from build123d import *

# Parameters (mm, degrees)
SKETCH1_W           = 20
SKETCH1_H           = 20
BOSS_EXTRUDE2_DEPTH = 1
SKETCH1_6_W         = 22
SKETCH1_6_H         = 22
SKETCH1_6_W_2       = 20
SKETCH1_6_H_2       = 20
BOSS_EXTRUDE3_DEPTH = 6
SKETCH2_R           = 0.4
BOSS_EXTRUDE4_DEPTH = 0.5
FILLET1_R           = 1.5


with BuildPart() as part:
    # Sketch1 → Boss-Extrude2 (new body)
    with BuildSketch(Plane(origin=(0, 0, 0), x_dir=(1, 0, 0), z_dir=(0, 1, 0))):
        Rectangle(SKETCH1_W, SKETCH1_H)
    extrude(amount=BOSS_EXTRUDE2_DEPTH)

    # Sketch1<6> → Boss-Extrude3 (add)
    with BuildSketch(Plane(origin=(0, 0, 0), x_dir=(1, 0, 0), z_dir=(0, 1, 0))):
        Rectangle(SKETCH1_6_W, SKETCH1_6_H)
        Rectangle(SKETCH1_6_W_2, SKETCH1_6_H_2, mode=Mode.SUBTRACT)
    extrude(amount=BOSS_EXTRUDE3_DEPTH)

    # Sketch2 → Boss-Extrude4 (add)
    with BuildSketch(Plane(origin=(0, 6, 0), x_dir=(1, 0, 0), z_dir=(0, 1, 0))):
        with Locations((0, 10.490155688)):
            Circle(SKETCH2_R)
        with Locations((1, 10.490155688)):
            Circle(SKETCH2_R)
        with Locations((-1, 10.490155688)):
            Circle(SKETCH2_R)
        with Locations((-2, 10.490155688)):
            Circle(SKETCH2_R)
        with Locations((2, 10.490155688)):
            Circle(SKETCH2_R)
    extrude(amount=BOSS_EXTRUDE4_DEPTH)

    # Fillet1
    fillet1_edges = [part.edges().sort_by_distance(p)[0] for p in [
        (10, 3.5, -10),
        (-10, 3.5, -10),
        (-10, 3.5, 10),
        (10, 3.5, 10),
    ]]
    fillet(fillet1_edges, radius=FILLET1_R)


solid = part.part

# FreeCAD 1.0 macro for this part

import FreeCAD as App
import Part
import Sketcher

V = App.Vector
Q = App.Units.Quantity


def edges_at(feature, points):
    """Names of the edges that pass closest to the given points."""
    edges = feature.Shape.Edges
    near = lambda p: min(range(len(edges)), key=lambda i: edges[i].distToShape(Part.Vertex(*p))[0])
    return sorted({f"Edge{near(p) + 1}" for p in points})

doc = App.newDocument("Part")
params = doc.addObject("Spreadsheet::Sheet", "Params")
for row, (alias, value) in enumerate([
    ("sketch1_width", "20 mm"),
    ("pad1_length", "1 mm"),
    ("sketch2_width", "22 mm"),
    ("sketch2_width2", "20 mm"),
    ("pad2_length", "6 mm"),
    ("sketch3_diameter", "0.8 mm"),
    ("pad3_length", "0.5 mm"),
    ("fillet_radius", "1.5 mm"),
], start=1):
    params.set(f"A{row}", alias)
    params.set(f"B{row}", "=" + value)
    params.setAlias(f"B{row}", alias)

body = doc.addObject("PartDesign::Body", "Body")

# Sketch on XZ plane
sketch1 = body.newObject("Sketcher::SketchObject", "Sketch")
sketch1.AttachmentSupport = (doc.getObject("XZ_Plane"), [""])
sketch1.MapMode = "FlatFace"
sketch1.addGeometry(Part.LineSegment(V(-10, -10, 0), V(-10, 10, 0)), False)
sketch1.addGeometry(Part.LineSegment(V(-10, 10, 0), V(10, 10, 0)), False)
sketch1.addGeometry(Part.LineSegment(V(10, 10, 0), V(10, -10, 0)), False)
sketch1.addGeometry(Part.LineSegment(V(10, -10, 0), V(-10, -10, 0)), False)
sketch1.addConstraint(Sketcher.Constraint("Coincident", 0, 2, 1, 1))
sketch1.addConstraint(Sketcher.Constraint("Coincident", 1, 2, 2, 1))
sketch1.addConstraint(Sketcher.Constraint("Coincident", 2, 2, 3, 1))
sketch1.addConstraint(Sketcher.Constraint("Coincident", 3, 2, 0, 1))
sketch1.addConstraint(Sketcher.Constraint("Vertical", 0))
sketch1.addConstraint(Sketcher.Constraint("Horizontal", 1))
sketch1.addConstraint(Sketcher.Constraint("Vertical", 2))
sketch1.addConstraint(Sketcher.Constraint("Horizontal", 3))
sketch1.addConstraint(Sketcher.Constraint("Symmetric", 0, 2, 2, 2, -1, 1))
sketch1.addConstraint(Sketcher.Constraint("Equal", 3, 0))
sketch1.addConstraint(Sketcher.Constraint("DistanceX", 1, 1, 1, 2, Q("20 mm")))
sketch1.setExpression("Constraints[10]", "Params.sketch1_width")
pad1 = body.newObject("PartDesign::Pad", "Pad")
pad1.Profile = sketch1
pad1.setExpression("Length", "Params.pad1_length")
pad1.Reversed = True

# Sketch on XZ plane
sketch2 = body.newObject("Sketcher::SketchObject", "Sketch001")
sketch2.AttachmentSupport = (doc.getObject("XZ_Plane"), [""])
sketch2.MapMode = "FlatFace"
sketch2.addGeometry(Part.LineSegment(V(-11, -11, 0), V(-11, 11, 0)), False)
sketch2.addGeometry(Part.LineSegment(V(-11, 11, 0), V(11, 11, 0)), False)
sketch2.addGeometry(Part.LineSegment(V(11, 11, 0), V(11, -11, 0)), False)
sketch2.addGeometry(Part.LineSegment(V(11, -11, 0), V(-11, -11, 0)), False)
sketch2.addGeometry(Part.LineSegment(V(10, 10, 0), V(-10, 10, 0)), False)
sketch2.addGeometry(Part.LineSegment(V(-10, 10, 0), V(-10, -10, 0)), False)
sketch2.addGeometry(Part.LineSegment(V(-10, -10, 0), V(10, -10, 0)), False)
sketch2.addGeometry(Part.LineSegment(V(10, -10, 0), V(10, 10, 0)), False)
sketch2.addConstraint(Sketcher.Constraint("Coincident", 0, 2, 1, 1))
sketch2.addConstraint(Sketcher.Constraint("Coincident", 1, 2, 2, 1))
sketch2.addConstraint(Sketcher.Constraint("Coincident", 2, 2, 3, 1))
sketch2.addConstraint(Sketcher.Constraint("Coincident", 3, 2, 0, 1))
sketch2.addConstraint(Sketcher.Constraint("Coincident", 4, 2, 5, 1))
sketch2.addConstraint(Sketcher.Constraint("Coincident", 5, 2, 6, 1))
sketch2.addConstraint(Sketcher.Constraint("Coincident", 6, 2, 7, 1))
sketch2.addConstraint(Sketcher.Constraint("Coincident", 7, 2, 4, 1))
sketch2.addConstraint(Sketcher.Constraint("Vertical", 0))
sketch2.addConstraint(Sketcher.Constraint("Horizontal", 1))
sketch2.addConstraint(Sketcher.Constraint("Vertical", 2))
sketch2.addConstraint(Sketcher.Constraint("Horizontal", 3))
sketch2.addConstraint(Sketcher.Constraint("Horizontal", 4))
sketch2.addConstraint(Sketcher.Constraint("Vertical", 5))
sketch2.addConstraint(Sketcher.Constraint("Horizontal", 6))
sketch2.addConstraint(Sketcher.Constraint("Vertical", 7))
sketch2.addConstraint(Sketcher.Constraint("Symmetric", 0, 2, 2, 2, -1, 1))
sketch2.addConstraint(Sketcher.Constraint("Symmetric", 4, 2, 6, 2, -1, 1))
sketch2.addConstraint(Sketcher.Constraint("Equal", 3, 0))
sketch2.addConstraint(Sketcher.Constraint("Equal", 6, 5))
sketch2.addConstraint(Sketcher.Constraint("DistanceX", 1, 1, 1, 2, Q("22 mm")))
sketch2.addConstraint(Sketcher.Constraint("DistanceX", 4, 2, 4, 1, Q("20 mm")))
sketch2.setExpression("Constraints[20]", "Params.sketch2_width")
sketch2.setExpression("Constraints[21]", "Params.sketch2_width2")
pad2 = body.newObject("PartDesign::Pad", "Pad001")
pad2.Profile = sketch2
pad2.setExpression("Length", "Params.pad2_length")
pad2.Reversed = True

# Sketch on XZ plane
sketch3 = body.newObject("Sketcher::SketchObject", "Sketch002")
sketch3.AttachmentSupport = (doc.getObject("XZ_Plane"), [""])
sketch3.MapMode = "FlatFace"
sketch3.AttachmentOffset = App.Placement(V(0, 0, -6), App.Rotation())
sketch3.addGeometry(Part.Circle(V(0, -10.490156, 0), V(0, 0, 1), 0.4), False)
sketch3.addGeometry(Part.Circle(V(1, -10.490156, 0), V(0, 0, 1), 0.4), False)
sketch3.addGeometry(Part.Circle(V(-1, -10.490156, 0), V(0, 0, 1), 0.4), False)
sketch3.addGeometry(Part.Circle(V(-2, -10.490156, 0), V(0, 0, 1), 0.4), False)
sketch3.addGeometry(Part.Circle(V(2, -10.490156, 0), V(0, 0, 1), 0.4), False)
sketch3.addConstraint(Sketcher.Constraint("Equal", 0, 1))
sketch3.addConstraint(Sketcher.Constraint("Equal", 1, 2))
sketch3.addConstraint(Sketcher.Constraint("Equal", 2, 3))
sketch3.addConstraint(Sketcher.Constraint("Equal", 3, 4))
sketch3.addConstraint(Sketcher.Constraint("Symmetric", 1, 3, 2, 3, -2))
sketch3.addConstraint(Sketcher.Constraint("Symmetric", 3, 3, 4, 3, -2))
sketch3.addConstraint(Sketcher.Constraint("PointOnObject", 0, 3, -2))
sketch3.addConstraint(Sketcher.Constraint("Horizontal", 0, 3, 1, 3))
sketch3.addConstraint(Sketcher.Constraint("Horizontal", 2, 3, 3, 3))
sketch3.addConstraint(Sketcher.Constraint("Diameter", 0, Q("0.8 mm")))
sketch3.addConstraint(Sketcher.Constraint("DistanceX", -1, 1, 1, 3, Q("1 mm")))
sketch3.addConstraint(Sketcher.Constraint("DistanceX", 3, 3, -1, 1, Q("2 mm")))
sketch3.addConstraint(Sketcher.Constraint("DistanceY", 0, 3, -1, 1, Q("10.490156 mm")))
sketch3.setExpression("Constraints[9]", "Params.sketch3_diameter")
pad3 = body.newObject("PartDesign::Pad", "Pad002")
pad3.Profile = sketch3
pad3.setExpression("Length", "Params.pad3_length")
pad3.Reversed = True
doc.recompute()

fillet = body.newObject("PartDesign::Fillet", "Fillet")
fillet.Base = (pad3, edges_at(pad3, [
    (10, 3.5, -10),
    (-10, 3.5, -10),
    (-10, 3.5, 10),
    (10, 3.5, 10),
]))
fillet.setExpression("Radius", "Params.fillet_radius")

doc.recompute()
